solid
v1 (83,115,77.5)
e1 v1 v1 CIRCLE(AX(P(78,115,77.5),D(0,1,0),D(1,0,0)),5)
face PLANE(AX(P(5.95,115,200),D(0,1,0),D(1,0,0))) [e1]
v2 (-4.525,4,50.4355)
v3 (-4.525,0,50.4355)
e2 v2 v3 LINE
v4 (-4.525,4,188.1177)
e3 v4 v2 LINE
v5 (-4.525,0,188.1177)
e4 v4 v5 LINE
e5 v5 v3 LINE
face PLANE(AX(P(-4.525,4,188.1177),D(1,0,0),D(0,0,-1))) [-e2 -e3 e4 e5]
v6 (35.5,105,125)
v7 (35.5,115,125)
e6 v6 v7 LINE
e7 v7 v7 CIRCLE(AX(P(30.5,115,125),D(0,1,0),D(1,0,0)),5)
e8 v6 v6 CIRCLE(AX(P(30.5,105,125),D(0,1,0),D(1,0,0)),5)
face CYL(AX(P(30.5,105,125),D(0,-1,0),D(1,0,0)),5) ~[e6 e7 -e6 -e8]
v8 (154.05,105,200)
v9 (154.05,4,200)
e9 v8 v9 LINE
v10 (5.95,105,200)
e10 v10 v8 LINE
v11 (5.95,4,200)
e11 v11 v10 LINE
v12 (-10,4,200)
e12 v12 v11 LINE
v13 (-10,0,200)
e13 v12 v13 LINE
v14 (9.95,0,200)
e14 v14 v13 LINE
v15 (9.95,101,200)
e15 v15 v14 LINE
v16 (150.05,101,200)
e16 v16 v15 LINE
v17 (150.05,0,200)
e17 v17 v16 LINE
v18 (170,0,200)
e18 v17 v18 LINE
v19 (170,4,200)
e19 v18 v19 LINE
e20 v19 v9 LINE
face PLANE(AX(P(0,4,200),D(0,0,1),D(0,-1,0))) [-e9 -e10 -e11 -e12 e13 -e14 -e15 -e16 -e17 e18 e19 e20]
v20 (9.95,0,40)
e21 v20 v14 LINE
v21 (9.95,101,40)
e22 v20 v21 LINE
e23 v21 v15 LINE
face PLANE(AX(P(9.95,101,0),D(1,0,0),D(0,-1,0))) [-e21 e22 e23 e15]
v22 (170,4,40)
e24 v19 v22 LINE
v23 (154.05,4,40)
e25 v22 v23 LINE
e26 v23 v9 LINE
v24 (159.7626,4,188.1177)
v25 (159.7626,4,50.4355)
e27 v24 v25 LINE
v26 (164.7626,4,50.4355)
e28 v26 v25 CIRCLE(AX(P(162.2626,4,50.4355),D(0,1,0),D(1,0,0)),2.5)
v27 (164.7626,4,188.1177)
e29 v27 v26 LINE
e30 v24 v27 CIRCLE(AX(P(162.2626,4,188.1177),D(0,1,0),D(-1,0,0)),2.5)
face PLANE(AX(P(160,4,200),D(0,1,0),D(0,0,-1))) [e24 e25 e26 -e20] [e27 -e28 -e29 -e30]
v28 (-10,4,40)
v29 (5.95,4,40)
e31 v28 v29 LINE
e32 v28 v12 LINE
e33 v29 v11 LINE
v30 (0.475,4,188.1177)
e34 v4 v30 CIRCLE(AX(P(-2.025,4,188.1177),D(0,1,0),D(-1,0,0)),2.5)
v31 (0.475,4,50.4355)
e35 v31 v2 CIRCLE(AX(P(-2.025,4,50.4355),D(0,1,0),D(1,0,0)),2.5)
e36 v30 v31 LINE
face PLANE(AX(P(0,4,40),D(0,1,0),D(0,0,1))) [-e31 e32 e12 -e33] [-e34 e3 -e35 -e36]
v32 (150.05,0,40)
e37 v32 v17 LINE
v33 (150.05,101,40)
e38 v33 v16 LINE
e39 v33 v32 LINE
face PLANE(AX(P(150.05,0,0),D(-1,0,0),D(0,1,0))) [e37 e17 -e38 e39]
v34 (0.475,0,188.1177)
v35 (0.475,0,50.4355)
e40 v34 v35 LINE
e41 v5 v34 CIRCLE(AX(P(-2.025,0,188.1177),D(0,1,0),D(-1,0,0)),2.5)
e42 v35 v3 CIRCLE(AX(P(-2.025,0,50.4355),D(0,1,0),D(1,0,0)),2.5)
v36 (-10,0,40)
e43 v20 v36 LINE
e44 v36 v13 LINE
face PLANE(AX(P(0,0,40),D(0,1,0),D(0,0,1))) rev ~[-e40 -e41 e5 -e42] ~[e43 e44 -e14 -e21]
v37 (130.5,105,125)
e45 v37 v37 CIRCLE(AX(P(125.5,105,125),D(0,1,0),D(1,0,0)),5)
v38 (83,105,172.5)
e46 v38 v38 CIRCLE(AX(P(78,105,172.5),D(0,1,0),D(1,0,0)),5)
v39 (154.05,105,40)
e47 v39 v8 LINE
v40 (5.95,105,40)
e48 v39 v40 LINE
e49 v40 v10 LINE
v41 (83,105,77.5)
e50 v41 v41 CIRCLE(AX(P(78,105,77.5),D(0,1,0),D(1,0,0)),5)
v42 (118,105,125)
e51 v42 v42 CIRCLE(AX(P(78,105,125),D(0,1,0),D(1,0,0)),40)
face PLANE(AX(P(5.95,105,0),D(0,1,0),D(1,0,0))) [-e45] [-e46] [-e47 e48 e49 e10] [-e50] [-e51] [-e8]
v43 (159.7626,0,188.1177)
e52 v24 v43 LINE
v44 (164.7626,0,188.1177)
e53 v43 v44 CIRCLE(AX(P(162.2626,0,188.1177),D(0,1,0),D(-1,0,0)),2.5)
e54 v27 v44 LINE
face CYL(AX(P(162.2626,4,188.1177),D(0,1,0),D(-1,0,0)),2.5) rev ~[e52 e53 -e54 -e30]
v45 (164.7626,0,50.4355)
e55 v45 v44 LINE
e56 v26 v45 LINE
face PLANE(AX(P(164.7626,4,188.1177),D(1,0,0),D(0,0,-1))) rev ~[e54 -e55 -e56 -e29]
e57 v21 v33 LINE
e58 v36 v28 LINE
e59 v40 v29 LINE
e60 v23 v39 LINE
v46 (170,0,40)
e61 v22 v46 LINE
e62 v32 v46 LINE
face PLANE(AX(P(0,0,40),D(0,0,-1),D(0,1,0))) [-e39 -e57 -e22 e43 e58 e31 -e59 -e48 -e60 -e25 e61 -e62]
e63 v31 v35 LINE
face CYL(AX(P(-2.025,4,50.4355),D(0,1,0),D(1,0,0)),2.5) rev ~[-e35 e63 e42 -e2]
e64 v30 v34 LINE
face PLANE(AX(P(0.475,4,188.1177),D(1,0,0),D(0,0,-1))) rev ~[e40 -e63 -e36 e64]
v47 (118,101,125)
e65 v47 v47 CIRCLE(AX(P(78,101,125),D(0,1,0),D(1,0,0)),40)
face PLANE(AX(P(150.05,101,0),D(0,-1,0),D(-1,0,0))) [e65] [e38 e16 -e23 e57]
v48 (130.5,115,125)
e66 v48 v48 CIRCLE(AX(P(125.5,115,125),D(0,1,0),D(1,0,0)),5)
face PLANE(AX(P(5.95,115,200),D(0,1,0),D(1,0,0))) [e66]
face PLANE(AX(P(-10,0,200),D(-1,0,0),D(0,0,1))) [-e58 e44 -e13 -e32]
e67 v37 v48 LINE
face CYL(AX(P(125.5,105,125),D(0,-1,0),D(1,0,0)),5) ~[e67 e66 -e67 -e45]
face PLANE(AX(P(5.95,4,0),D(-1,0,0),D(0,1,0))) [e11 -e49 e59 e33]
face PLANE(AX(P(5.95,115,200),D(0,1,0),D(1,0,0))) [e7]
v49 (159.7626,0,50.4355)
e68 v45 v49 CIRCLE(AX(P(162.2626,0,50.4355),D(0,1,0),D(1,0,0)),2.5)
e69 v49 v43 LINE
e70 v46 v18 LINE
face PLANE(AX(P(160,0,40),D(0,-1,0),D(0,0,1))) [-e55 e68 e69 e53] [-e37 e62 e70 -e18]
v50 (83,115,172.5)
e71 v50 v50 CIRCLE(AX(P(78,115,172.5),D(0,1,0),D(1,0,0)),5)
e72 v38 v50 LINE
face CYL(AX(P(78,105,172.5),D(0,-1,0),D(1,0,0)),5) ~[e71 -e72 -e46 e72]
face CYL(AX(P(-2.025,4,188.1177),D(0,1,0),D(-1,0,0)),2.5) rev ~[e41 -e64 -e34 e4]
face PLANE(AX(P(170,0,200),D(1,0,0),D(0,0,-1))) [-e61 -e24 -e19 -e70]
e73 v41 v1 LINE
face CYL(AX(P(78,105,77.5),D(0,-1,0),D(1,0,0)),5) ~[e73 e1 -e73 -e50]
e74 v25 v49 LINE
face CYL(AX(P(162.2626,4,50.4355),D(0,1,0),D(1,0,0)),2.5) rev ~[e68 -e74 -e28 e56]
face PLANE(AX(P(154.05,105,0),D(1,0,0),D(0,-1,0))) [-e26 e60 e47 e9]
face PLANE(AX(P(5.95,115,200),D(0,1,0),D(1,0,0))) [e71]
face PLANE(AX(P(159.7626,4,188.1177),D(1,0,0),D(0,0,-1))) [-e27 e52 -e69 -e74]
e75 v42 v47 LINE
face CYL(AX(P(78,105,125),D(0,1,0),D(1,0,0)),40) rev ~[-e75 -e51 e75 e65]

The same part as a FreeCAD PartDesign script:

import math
import FreeCAD as App
import Part
import Sketcher

V = App.Vector


def add_polygon(sketch, points):
    """Adds a closed chain of lines whose ends are joined by coincident constraints."""
    first, n = sketch.GeometryCount, len(points)
    for a, b in zip(points, points[1:] + points[:1]):
        sketch.addGeometry(Part.LineSegment(App.Vector(*a, 0), App.Vector(*b, 0)), False)
    for i in range(n):
        sketch.addConstraint(Sketcher.Constraint("Coincident", first + i, 2, first + (i + 1) % n, 1))

doc = App.newDocument("Part")
body = doc.addObject("PartDesign::Body", "Body")

sketch1 = doc.addObject("Sketcher::SketchObject", "Sketch")
body.addObject(sketch1)
sketch1.AttachmentSupport = (doc.XY_Plane, [""])
sketch1.MapMode = "FlatFace"
add_polygon(sketch1, [(0, 4), (0, 0), (9.95, 0), (9.95, 101), (150.05, 101), (150.05, 0), (160, 0), (160, 4), (154.05, 4), (154.05, 105), (5.95, 105), (5.95, 4)])
sketch1.addConstraint(Sketcher.Constraint("Vertical", 0))
sketch1.addConstraint(Sketcher.Constraint("Horizontal", 1))
sketch1.addConstraint(Sketcher.Constraint("Vertical", 2))
sketch1.addConstraint(Sketcher.Constraint("Horizontal", 3))
sketch1.addConstraint(Sketcher.Constraint("Vertical", 4))
sketch1.addConstraint(Sketcher.Constraint("Horizontal", 5))
sketch1.addConstraint(Sketcher.Constraint("Vertical", 6))
sketch1.addConstraint(Sketcher.Constraint("Horizontal", 7))
sketch1.addConstraint(Sketcher.Constraint("Vertical", 8))
sketch1.addConstraint(Sketcher.Constraint("Horizontal", 9))
sketch1.addConstraint(Sketcher.Constraint("Vertical", 10))
sketch1.addConstraint(Sketcher.Constraint("Horizontal", 11))
sketch1.addConstraint(Sketcher.Constraint("Coincident", 0, 2, -1, 1))
sketch1.addConstraint(Sketcher.Constraint("PointOnObject", 4, 2, -1))
sketch1.addConstraint(Sketcher.Constraint("Horizontal", 7, 2, 10, 2))
sketch1.addConstraint(Sketcher.Constraint("Equal", 1, 5))
sketch1.addConstraint(Sketcher.Constraint("Equal", 7, 11))
sketch1.addConstraint(Sketcher.Constraint("Equal", 4, 8))
sketch1.addConstraint(Sketcher.Constraint("DistanceY", 0, 2, 0, 1, 4.0))
sketch1.addConstraint(Sketcher.Constraint("DistanceY", 2, 1, 2, 2, 101.0))
sketch1.addConstraint(Sketcher.Constraint("DistanceX", 3, 1, 3, 2, 140.1))
sketch1.addConstraint(Sketcher.Constraint("DistanceX", 9, 2, 9, 1, 148.1))
sketch1.addConstraint(Sketcher.Constraint("DistanceX", -1, 1, 5, 2, 160.0))
pad1 = doc.addObject("PartDesign::Pad", "Pad")
body.addObject(pad1)
pad1.Profile = sketch1
pad1.Length = 250

sketch2 = doc.addObject("Sketcher::SketchObject", "Sketch001")
body.addObject(sketch2)
sketch2.AttachmentSupport = (doc.XZ_Plane, [""])
sketch2.MapMode = "FlatFace"
sketch2.AttachmentOffset = App.Placement(V(0, 0, -105), App.Rotation())
sketch2.addGeometry(Part.Circle(V(78, 125, 0), V(0, 0, 1), 40), False)
sketch2.addConstraint(Sketcher.Constraint("Diameter", 0, 80.0))
sketch2.addConstraint(Sketcher.Constraint("DistanceX", -1, 1, 0, 3, 78.0))
sketch2.addConstraint(Sketcher.Constraint("DistanceY", -1, 1, 0, 3, 125.0))
pocket1 = doc.addObject("PartDesign::Pocket", "Pocket")
body.addObject(pocket1)
pocket1.Profile = sketch2
pocket1.Length = 250
pocket1.Reversed = True

sketch3 = doc.addObject("Sketcher::SketchObject", "Sketch002")
body.addObject(sketch3)
sketch3.AttachmentSupport = (doc.XY_Plane, [""])
sketch3.MapMode = "FlatFace"
sketch3.AttachmentOffset = App.Placement(V(0, 0, 250), App.Rotation())
add_polygon(sketch3, [(0, 113.7831), (0, 0), (165.9252, 0), (165.9252, 113.7831)])
sketch3.addConstraint(Sketcher.Constraint("Vertical", 0))
sketch3.addConstraint(Sketcher.Constraint("Horizontal", 1))
sketch3.addConstraint(Sketcher.Constraint("Vertical", 2))
sketch3.addConstraint(Sketcher.Constraint("Horizontal", 3))
sketch3.addConstraint(Sketcher.Constraint("Coincident", 0, 2, -1, 1))
sketch3.addConstraint(Sketcher.Constraint("DistanceY", 0, 2, 0, 1, 113.783))
sketch3.addConstraint(Sketcher.Constraint("DistanceX", 1, 1, 1, 2, 165.9252))
pocket2 = doc.addObject("PartDesign::Pocket", "Pocket001")
body.addObject(pocket2)
pocket2.Profile = sketch3
pocket2.Length = 50

sketch4 = doc.addObject("Sketcher::SketchObject", "Sketch003")
body.addObject(sketch4)
sketch4.AttachmentSupport = (doc.XY_Plane, [""])
sketch4.MapMode = "FlatFace"
add_polygon(sketch4, [(0, 0), (0, 123.0797), (198.2615, 123.0797), (198.2615, 0)])
sketch4.addConstraint(Sketcher.Constraint("Vertical", 0))
sketch4.addConstraint(Sketcher.Constraint("Horizontal", 1))
sketch4.addConstraint(Sketcher.Constraint("Vertical", 2))
sketch4.addConstraint(Sketcher.Constraint("Horizontal", 3))
sketch4.addConstraint(Sketcher.Constraint("Coincident", 3, 2, -1, 1))
sketch4.addConstraint(Sketcher.Constraint("DistanceX", 1, 1, 1, 2, 198.2615))
sketch4.addConstraint(Sketcher.Constraint("DistanceY", 0, 1, 0, 2, 123.0797))
pocket3 = doc.addObject("PartDesign::Pocket", "Pocket002")
body.addObject(pocket3)
pocket3.Profile = sketch4
pocket3.Length = 40
pocket3.Reversed = True

sketch5 = doc.addObject("Sketcher::SketchObject", "Sketch004")
body.addObject(sketch5)
sketch5.AttachmentSupport = (doc.YZ_Plane, [""])
sketch5.MapMode = "FlatFace"
sketch5.AttachmentOffset = App.Placement(V(0, 0, 160), App.Rotation())
add_polygon(sketch5, [(4, 200), (0, 200), (0, 40), (4, 40)])
sketch5.addConstraint(Sketcher.Constraint("Horizontal", 0))
sketch5.addConstraint(Sketcher.Constraint("Vertical", 1))
sketch5.addConstraint(Sketcher.Constraint("Horizontal", 2))
sketch5.addConstraint(Sketcher.Constraint("Vertical", 3))
sketch5.addConstraint(Sketcher.Constraint("PointOnObject", 0, 2, -2))
sketch5.addConstraint(Sketcher.Constraint("DistanceX", 0, 2, 0, 1, 4.0))
sketch5.addConstraint(Sketcher.Constraint("DistanceY", 1, 2, 1, 1, 160.0))
sketch5.addConstraint(Sketcher.Constraint("DistanceY", -1, 1, 0, 2, 200.0))
pad2 = doc.addObject("PartDesign::Pad", "Pad001")
body.addObject(pad2)
pad2.Profile = sketch5
pad2.Length = 10

sketch6 = doc.addObject("Sketcher::SketchObject", "Sketch005")
body.addObject(sketch6)
sketch6.AttachmentSupport = (doc.YZ_Plane, [""])
sketch6.MapMode = "FlatFace"
add_polygon(sketch6, [(4, 40), (0, 40), (0, 200), (4, 200)])
sketch6.addConstraint(Sketcher.Constraint("Horizontal", 0))
sketch6.addConstraint(Sketcher.Constraint("Vertical", 1))
sketch6.addConstraint(Sketcher.Constraint("Horizontal", 2))
sketch6.addConstraint(Sketcher.Constraint("Vertical", 3))
sketch6.addConstraint(Sketcher.Constraint("PointOnObject", 0, 2, -2))
sketch6.addConstraint(Sketcher.Constraint("DistanceX", 0, 2, 0, 1, 4.0))
sketch6.addConstraint(Sketcher.Constraint("DistanceY", 1, 1, 1, 2, 160.0))
sketch6.addConstraint(Sketcher.Constraint("DistanceY", -1, 1, 0, 2, 40.0))
pad3 = doc.addObject("PartDesign::Pad", "Pad002")
body.addObject(pad3)
pad3.Profile = sketch6
pad3.Length = 10
pad3.Reversed = True

sketch7 = doc.addObject("Sketcher::SketchObject", "Sketch006")
body.addObject(sketch7)
sketch7.AttachmentSupport = (doc.XZ_Plane, [""])
sketch7.MapMode = "FlatFace"
sketch7.AttachmentOffset = App.Placement(V(0, 0, -4), App.Rotation())
sketch7.addGeometry(Part.LineSegment(V(0.475, 188.1177, 0), V(0.475, 50.4355, 0)), False)
sketch7.addGeometry(Part.ArcOfCircle(Part.Circle(V(-2.025, 50.4355, 0), V(0, 0, 1), 2.5), math.radians(180), math.radians(360)), False)
sketch7.addGeometry(Part.LineSegment(V(-4.525, 50.4355, 0), V(-4.525, 188.1177, 0)), False)
sketch7.addGeometry(Part.ArcOfCircle(Part.Circle(V(-2.025, 188.1177, 0), V(0, 0, 1), 2.5), math.radians(0), math.radians(180)), False)
sketch7.addGeometry(Part.LineSegment(V(159.7626, 50.4355, 0), V(159.7626, 188.1177, 0)), False)
sketch7.addGeometry(Part.ArcOfCircle(Part.Circle(V(162.2626, 188.1177, 0), V(0, 0, 1), 2.5), math.radians(0), math.radians(180)), False)
sketch7.addGeometry(Part.LineSegment(V(164.7626, 188.1177, 0), V(164.7626, 50.4355, 0)), False)
sketch7.addGeometry(Part.ArcOfCircle(Part.Circle(V(162.2626, 50.4355, 0), V(0, 0, 1), 2.5), math.radians(180), math.radians(360)), False)
sketch7.addConstraint(Sketcher.Constraint("Tangent", 0, 2, 1, 2))
sketch7.addConstraint(Sketcher.Constraint("Tangent", 1, 1, 2, 1))
sketch7.addConstraint(Sketcher.Constraint("Tangent", 2, 2, 3, 2))
sketch7.addConstraint(Sketcher.Constraint("Tangent", 3, 1, 0, 1))
sketch7.addConstraint(Sketcher.Constraint("Tangent", 4, 2, 5, 2))
sketch7.addConstraint(Sketcher.Constraint("Tangent", 5, 1, 6, 1))
sketch7.addConstraint(Sketcher.Constraint("Tangent", 6, 2, 7, 2))
sketch7.addConstraint(Sketcher.Constraint("Tangent", 7, 1, 4, 1))
sketch7.addConstraint(Sketcher.Constraint("Vertical", 0))
sketch7.addConstraint(Sketcher.Constraint("Vertical", 2))
sketch7.addConstraint(Sketcher.Constraint("Vertical", 4))
sketch7.addConstraint(Sketcher.Constraint("Vertical", 6))
sketch7.addConstraint(Sketcher.Constraint("Equal", 3, 5))
sketch7.addConstraint(Sketcher.Constraint("Horizontal", 3, 3, 5, 3))
sketch7.addConstraint(Sketcher.Constraint("Horizontal", 1, 3, 7, 3))
sketch7.addConstraint(Sketcher.Constraint("Radius", 1, 2.5))
sketch7.addConstraint(Sketcher.Constraint("DistanceY", 0, 2, 0, 1, 137.6822))
sketch7.addConstraint(Sketcher.Constraint("DistanceX", 1, 3, -1, 1, 2.025))
sketch7.addConstraint(Sketcher.Constraint("DistanceY", -1, 1, 1, 3, 50.4355))
sketch7.addConstraint(Sketcher.Constraint("DistanceX", -1, 1, 5, 3, 162.2626))
pocket4 = doc.addObject("PartDesign::Pocket", "Pocket003")
body.addObject(pocket4)
pocket4.Profile = sketch7
pocket4.Length = 10
pocket4.Reversed = True

sketch8 = doc.addObject("Sketcher::SketchObject", "Sketch007")
body.addObject(sketch8)
sketch8.AttachmentSupport = (doc.XZ_Plane, [""])
sketch8.MapMode = "FlatFace"
sketch8.AttachmentOffset = App.Placement(V(0, 0, -105), App.Rotation())
sketch8.addGeometry(Part.Circle(V(125.5, 125, 0), V(0, 0, 1), 5), False)
sketch8.addGeometry(Part.Circle(V(78, 172.5, 0), V(0, 0, 1), 5), False)
sketch8.addGeometry(Part.Circle(V(30.5, 125, 0), V(0, 0, 1), 5), False)
sketch8.addGeometry(Part.Circle(V(78, 77.5, 0), V(0, 0, 1), 5), False)
sketch8.addConstraint(Sketcher.Constraint("Equal", 0, 1))
sketch8.addConstraint(Sketcher.Constraint("Equal", 1, 2))
sketch8.addConstraint(Sketcher.Constraint("Equal", 2, 3))
sketch8.addConstraint(Sketcher.Constraint("Horizontal", 0, 3, 2, 3))
sketch8.addConstraint(Sketcher.Constraint("Vertical", 1, 3, 3, 3))
sketch8.addConstraint(Sketcher.Constraint("Diameter", 0, 10.0))
sketch8.addConstraint(Sketcher.Constraint("DistanceY", -1, 1, 0, 3, 125.0))
sketch8.addConstraint(Sketcher.Constraint("DistanceX", -1, 1, 1, 3, 78.0))
sketch8.addConstraint(Sketcher.Constraint("DistanceX", 2, 3, 0, 3, 95.0))
sketch8.addConstraint(Sketcher.Constraint("DistanceY", 3, 3, 1, 3, 95.0))
sketch8.addConstraint(Sketcher.Constraint("DistanceX", -1, 1, 0, 3, 125.5))
sketch8.addConstraint(Sketcher.Constraint("DistanceY", -1, 1, 1, 3, 172.5))
pad4 = doc.addObject("PartDesign::Pad", "Pad003")
body.addObject(pad4)
pad4.Profile = sketch8
pad4.Length = 10
pad4.Reversed = True

doc.recompute()
